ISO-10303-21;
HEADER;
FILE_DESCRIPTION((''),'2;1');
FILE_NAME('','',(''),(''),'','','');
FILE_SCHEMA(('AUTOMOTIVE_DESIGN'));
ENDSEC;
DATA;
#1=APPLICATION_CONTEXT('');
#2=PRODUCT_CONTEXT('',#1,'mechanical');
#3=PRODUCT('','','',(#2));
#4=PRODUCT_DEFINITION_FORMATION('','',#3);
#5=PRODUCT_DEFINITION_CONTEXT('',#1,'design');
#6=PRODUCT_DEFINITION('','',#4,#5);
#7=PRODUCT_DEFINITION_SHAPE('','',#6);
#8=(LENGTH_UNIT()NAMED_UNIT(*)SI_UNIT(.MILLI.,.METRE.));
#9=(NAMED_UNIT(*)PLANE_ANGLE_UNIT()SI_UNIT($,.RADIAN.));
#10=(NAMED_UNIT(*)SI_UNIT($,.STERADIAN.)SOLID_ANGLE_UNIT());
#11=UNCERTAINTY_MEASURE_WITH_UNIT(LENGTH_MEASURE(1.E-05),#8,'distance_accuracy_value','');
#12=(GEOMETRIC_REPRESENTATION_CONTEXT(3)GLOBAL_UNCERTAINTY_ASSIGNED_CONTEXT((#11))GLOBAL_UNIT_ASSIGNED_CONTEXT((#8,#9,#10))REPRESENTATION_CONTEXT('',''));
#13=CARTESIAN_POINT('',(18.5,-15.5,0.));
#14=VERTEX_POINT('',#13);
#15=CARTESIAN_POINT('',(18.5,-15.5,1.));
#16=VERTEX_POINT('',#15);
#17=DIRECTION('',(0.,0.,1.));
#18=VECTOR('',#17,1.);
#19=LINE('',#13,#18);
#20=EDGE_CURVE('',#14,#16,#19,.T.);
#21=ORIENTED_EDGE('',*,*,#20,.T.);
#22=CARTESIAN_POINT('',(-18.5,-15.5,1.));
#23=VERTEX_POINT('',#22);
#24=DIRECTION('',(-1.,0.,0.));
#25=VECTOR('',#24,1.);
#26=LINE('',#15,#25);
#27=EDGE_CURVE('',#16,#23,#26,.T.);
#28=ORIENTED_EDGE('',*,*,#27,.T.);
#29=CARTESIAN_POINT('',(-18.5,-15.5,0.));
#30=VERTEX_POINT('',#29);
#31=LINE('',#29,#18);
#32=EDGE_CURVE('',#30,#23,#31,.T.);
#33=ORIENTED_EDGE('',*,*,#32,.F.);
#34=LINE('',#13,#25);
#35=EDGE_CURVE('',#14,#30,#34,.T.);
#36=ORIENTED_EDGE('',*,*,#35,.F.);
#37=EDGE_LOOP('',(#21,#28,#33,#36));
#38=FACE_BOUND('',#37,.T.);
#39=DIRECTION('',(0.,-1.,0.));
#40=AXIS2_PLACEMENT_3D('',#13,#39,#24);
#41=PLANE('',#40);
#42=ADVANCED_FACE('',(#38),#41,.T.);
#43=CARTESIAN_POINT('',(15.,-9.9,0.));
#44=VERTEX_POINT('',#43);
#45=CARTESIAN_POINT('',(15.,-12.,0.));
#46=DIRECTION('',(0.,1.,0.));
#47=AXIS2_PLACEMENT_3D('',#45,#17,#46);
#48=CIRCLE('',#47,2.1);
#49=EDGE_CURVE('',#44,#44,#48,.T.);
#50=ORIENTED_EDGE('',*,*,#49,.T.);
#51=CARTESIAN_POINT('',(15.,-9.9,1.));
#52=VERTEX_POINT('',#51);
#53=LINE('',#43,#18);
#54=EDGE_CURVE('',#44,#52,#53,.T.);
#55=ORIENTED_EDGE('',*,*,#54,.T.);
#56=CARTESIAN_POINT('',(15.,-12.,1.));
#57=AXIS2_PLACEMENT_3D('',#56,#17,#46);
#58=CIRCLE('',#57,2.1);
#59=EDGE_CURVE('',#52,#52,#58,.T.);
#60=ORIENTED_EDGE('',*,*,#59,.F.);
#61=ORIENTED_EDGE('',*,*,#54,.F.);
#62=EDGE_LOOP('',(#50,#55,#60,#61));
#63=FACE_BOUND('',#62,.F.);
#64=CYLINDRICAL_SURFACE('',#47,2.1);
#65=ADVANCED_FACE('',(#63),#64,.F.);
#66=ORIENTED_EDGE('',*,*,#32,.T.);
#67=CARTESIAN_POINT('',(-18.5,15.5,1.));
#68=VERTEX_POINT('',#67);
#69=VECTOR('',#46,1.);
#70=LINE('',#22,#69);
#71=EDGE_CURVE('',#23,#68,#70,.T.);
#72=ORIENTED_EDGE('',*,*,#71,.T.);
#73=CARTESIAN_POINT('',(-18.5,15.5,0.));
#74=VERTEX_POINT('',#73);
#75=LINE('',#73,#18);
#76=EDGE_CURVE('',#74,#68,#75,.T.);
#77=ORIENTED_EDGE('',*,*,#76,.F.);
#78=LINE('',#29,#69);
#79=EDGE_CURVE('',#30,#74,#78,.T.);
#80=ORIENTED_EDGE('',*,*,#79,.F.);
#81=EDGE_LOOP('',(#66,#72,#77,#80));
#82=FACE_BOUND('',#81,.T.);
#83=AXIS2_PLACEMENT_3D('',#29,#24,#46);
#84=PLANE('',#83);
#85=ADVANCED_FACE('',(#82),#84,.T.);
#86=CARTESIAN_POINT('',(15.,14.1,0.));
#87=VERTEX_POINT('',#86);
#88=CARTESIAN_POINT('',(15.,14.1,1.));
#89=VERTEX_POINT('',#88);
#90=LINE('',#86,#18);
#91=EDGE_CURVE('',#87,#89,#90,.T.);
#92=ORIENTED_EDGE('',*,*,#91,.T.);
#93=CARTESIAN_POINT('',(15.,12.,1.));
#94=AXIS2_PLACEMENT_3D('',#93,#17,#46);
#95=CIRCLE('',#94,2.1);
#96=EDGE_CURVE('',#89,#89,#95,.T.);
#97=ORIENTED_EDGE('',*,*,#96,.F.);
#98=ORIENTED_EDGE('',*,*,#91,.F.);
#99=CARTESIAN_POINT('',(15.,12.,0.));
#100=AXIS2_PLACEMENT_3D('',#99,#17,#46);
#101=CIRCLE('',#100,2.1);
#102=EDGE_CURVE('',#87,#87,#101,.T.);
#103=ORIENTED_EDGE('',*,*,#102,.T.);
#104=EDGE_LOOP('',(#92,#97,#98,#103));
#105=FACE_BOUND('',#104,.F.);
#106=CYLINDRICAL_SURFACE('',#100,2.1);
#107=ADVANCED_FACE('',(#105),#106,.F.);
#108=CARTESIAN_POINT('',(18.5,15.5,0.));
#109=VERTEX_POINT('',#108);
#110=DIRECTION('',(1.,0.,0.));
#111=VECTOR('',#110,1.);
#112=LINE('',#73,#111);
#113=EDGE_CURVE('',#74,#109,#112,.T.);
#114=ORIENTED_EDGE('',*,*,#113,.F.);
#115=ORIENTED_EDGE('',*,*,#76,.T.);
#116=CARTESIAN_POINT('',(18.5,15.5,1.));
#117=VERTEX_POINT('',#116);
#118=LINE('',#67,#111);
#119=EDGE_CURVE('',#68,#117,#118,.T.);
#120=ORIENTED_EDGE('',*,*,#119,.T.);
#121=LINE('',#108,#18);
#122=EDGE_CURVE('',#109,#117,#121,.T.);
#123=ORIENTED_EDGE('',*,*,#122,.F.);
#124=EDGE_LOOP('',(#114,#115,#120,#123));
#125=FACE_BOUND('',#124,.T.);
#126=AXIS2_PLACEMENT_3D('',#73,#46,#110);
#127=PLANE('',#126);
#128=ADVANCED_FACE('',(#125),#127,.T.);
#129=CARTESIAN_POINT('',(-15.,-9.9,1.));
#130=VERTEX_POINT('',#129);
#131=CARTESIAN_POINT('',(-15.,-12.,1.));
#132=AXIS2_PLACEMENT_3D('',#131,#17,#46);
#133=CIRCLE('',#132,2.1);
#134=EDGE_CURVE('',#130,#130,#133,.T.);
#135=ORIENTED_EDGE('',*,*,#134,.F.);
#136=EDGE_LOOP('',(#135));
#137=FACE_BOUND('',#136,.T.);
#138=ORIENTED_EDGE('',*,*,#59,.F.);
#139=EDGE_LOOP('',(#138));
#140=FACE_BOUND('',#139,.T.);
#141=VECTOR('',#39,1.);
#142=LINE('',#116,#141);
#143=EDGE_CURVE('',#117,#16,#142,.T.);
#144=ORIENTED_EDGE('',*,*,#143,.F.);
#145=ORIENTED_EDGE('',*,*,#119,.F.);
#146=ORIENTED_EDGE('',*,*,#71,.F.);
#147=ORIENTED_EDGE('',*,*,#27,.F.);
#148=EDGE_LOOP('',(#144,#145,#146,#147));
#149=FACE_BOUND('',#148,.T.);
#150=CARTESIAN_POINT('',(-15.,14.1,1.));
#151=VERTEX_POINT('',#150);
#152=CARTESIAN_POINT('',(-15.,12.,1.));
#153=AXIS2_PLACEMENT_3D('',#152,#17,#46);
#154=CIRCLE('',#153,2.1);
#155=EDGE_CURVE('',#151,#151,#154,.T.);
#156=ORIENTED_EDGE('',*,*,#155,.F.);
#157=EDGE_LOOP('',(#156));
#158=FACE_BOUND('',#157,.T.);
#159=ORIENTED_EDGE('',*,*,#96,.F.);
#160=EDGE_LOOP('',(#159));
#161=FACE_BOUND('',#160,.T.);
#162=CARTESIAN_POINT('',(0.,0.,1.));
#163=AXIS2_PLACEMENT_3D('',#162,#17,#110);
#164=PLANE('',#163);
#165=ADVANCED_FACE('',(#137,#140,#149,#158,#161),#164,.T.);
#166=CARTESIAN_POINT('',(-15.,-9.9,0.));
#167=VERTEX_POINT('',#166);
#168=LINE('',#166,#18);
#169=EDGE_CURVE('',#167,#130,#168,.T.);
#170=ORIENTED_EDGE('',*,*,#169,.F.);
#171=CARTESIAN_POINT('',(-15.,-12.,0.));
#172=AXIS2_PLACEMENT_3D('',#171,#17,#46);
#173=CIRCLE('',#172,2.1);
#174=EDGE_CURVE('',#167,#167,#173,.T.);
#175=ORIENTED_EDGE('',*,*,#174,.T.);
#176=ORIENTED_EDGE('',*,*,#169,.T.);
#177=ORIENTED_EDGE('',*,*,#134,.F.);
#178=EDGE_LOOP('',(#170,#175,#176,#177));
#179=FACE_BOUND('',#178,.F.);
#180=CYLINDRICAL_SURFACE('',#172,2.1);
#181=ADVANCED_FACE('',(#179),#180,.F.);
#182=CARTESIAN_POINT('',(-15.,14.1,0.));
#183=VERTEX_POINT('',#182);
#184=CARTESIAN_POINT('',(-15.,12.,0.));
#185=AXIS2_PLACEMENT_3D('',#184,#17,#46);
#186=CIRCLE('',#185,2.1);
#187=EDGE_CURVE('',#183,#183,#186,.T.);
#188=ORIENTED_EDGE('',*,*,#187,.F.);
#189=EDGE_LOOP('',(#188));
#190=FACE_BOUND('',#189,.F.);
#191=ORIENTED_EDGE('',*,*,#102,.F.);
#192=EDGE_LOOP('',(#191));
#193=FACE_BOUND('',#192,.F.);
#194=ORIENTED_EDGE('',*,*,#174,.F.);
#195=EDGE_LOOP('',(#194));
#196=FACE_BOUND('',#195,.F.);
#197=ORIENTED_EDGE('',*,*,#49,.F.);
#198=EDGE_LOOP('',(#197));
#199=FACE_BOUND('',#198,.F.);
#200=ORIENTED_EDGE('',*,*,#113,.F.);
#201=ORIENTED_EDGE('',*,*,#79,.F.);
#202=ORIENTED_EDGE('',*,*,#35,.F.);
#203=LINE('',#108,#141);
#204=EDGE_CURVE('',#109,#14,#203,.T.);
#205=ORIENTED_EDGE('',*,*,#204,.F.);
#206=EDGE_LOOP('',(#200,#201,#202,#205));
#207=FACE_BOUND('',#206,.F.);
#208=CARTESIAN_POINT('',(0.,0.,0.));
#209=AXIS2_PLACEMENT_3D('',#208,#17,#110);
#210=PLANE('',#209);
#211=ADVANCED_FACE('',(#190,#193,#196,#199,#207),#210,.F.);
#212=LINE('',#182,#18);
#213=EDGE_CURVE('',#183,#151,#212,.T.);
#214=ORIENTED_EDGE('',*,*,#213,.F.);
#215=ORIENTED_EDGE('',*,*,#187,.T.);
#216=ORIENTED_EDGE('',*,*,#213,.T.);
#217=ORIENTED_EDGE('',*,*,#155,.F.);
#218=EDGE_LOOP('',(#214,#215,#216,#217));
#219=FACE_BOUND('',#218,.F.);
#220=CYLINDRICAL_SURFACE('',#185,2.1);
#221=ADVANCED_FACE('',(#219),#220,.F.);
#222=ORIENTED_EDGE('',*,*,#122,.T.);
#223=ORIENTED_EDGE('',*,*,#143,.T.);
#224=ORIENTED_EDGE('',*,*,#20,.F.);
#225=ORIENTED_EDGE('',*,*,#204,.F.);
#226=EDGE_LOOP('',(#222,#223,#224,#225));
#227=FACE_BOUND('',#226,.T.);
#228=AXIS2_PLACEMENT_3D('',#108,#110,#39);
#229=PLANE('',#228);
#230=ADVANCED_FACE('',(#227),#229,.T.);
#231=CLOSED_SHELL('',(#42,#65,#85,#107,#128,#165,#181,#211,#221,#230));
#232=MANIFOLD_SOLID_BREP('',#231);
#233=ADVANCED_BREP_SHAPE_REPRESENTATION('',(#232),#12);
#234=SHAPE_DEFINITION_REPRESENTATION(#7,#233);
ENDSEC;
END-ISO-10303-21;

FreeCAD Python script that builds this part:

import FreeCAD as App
import Part
import Sketcher

V = App.Vector
Q = App.Units.Quantity


def add_polygon(sketch, points):
    """Adds a closed chain of lines whose ends are joined by coincident constraints."""
    first, n = sketch.GeometryCount, len(points)
    for a, b in zip(points, points[1:] + points[:1]):
        sketch.addGeometry(Part.LineSegment(App.Vector(*a, 0), App.Vector(*b, 0)), False)
    for i in range(n):
        sketch.addConstraint(Sketcher.Constraint("Coincident", first + i, 2, first + (i + 1) % n, 1))

doc = App.newDocument("Part")
body = doc.addObject("PartDesign::Body", "Body")

sketch1 = body.newObject("Sketcher::SketchObject", "Sketch")
sketch1.AttachmentSupport = (doc.getObject("XY_Plane"), [""])
sketch1.MapMode = "FlatFace"
add_polygon(sketch1, [(-18, -16), (18, -16), (18, 16), (-18, 16)])
sketch1.addConstraint([
    Sketcher.Constraint("Horizontal", 0),
    Sketcher.Constraint("Vertical", 1),
    Sketcher.Constraint("Horizontal", 2),
    Sketcher.Constraint("Vertical", 3),
    Sketcher.Constraint("Symmetric", 0, 2, 2, 2, -1, 1),
    Sketcher.Constraint("DistanceX", 0, 1, 0, 2, Q("37 mm")),
    Sketcher.Constraint("DistanceY", 1, 1, 1, 2, Q("31 mm")),
])
pad1 = body.newObject("PartDesign::Pad", "Pad")
pad1.Profile = sketch1
pad1.Length = 1

sketch2 = body.newObject("Sketcher::SketchObject", "Sketch001")
sketch2.AttachmentSupport = (doc.getObject("XY_Plane"), [""])
sketch2.MapMode = "FlatFace"
sketch2.addGeometry([
    Part.Circle(V(-15, 12, 0), V(0, 0, 1), 2.1),
    Part.Circle(V(-15, -12, 0), V(0, 0, 1), 2.1),
    Part.Circle(V(15, 12, 0), V(0, 0, 1), 2.1),
    Part.Circle(V(15, -12, 0), V(0, 0, 1), 2.1),
], False)
sketch2.addConstraint([
    Sketcher.Constraint("Equal", 0, 1),
    Sketcher.Constraint("Equal", 1, 2),
    Sketcher.Constraint("Equal", 2, 3),
    Sketcher.Constraint("Symmetric", 1, 3, 2, 3, -1, 1),
    Sketcher.Constraint("Symmetric", 0, 3, 3, 3, -1, 1),
    Sketcher.Constraint("Symmetric", 0, 3, 2, 3, -2),
    Sketcher.Constraint("Diameter", 0, Q("4.2 mm")),
    Sketcher.Constraint("DistanceX", 0, 3, -1, 1, Q("15 mm")),
    Sketcher.Constraint("DistanceY", -1, 1, 0, 3, Q("12 mm")),
])
doc.recompute()
hole = body.newObject("PartDesign::Hole", "Hole")
hole.Profile = sketch2
hole.ThreadType = "None"
hole.Diameter = 4.2
hole.DepthType = "ThroughAll"
hole.Reversed = True

doc.recompute()
